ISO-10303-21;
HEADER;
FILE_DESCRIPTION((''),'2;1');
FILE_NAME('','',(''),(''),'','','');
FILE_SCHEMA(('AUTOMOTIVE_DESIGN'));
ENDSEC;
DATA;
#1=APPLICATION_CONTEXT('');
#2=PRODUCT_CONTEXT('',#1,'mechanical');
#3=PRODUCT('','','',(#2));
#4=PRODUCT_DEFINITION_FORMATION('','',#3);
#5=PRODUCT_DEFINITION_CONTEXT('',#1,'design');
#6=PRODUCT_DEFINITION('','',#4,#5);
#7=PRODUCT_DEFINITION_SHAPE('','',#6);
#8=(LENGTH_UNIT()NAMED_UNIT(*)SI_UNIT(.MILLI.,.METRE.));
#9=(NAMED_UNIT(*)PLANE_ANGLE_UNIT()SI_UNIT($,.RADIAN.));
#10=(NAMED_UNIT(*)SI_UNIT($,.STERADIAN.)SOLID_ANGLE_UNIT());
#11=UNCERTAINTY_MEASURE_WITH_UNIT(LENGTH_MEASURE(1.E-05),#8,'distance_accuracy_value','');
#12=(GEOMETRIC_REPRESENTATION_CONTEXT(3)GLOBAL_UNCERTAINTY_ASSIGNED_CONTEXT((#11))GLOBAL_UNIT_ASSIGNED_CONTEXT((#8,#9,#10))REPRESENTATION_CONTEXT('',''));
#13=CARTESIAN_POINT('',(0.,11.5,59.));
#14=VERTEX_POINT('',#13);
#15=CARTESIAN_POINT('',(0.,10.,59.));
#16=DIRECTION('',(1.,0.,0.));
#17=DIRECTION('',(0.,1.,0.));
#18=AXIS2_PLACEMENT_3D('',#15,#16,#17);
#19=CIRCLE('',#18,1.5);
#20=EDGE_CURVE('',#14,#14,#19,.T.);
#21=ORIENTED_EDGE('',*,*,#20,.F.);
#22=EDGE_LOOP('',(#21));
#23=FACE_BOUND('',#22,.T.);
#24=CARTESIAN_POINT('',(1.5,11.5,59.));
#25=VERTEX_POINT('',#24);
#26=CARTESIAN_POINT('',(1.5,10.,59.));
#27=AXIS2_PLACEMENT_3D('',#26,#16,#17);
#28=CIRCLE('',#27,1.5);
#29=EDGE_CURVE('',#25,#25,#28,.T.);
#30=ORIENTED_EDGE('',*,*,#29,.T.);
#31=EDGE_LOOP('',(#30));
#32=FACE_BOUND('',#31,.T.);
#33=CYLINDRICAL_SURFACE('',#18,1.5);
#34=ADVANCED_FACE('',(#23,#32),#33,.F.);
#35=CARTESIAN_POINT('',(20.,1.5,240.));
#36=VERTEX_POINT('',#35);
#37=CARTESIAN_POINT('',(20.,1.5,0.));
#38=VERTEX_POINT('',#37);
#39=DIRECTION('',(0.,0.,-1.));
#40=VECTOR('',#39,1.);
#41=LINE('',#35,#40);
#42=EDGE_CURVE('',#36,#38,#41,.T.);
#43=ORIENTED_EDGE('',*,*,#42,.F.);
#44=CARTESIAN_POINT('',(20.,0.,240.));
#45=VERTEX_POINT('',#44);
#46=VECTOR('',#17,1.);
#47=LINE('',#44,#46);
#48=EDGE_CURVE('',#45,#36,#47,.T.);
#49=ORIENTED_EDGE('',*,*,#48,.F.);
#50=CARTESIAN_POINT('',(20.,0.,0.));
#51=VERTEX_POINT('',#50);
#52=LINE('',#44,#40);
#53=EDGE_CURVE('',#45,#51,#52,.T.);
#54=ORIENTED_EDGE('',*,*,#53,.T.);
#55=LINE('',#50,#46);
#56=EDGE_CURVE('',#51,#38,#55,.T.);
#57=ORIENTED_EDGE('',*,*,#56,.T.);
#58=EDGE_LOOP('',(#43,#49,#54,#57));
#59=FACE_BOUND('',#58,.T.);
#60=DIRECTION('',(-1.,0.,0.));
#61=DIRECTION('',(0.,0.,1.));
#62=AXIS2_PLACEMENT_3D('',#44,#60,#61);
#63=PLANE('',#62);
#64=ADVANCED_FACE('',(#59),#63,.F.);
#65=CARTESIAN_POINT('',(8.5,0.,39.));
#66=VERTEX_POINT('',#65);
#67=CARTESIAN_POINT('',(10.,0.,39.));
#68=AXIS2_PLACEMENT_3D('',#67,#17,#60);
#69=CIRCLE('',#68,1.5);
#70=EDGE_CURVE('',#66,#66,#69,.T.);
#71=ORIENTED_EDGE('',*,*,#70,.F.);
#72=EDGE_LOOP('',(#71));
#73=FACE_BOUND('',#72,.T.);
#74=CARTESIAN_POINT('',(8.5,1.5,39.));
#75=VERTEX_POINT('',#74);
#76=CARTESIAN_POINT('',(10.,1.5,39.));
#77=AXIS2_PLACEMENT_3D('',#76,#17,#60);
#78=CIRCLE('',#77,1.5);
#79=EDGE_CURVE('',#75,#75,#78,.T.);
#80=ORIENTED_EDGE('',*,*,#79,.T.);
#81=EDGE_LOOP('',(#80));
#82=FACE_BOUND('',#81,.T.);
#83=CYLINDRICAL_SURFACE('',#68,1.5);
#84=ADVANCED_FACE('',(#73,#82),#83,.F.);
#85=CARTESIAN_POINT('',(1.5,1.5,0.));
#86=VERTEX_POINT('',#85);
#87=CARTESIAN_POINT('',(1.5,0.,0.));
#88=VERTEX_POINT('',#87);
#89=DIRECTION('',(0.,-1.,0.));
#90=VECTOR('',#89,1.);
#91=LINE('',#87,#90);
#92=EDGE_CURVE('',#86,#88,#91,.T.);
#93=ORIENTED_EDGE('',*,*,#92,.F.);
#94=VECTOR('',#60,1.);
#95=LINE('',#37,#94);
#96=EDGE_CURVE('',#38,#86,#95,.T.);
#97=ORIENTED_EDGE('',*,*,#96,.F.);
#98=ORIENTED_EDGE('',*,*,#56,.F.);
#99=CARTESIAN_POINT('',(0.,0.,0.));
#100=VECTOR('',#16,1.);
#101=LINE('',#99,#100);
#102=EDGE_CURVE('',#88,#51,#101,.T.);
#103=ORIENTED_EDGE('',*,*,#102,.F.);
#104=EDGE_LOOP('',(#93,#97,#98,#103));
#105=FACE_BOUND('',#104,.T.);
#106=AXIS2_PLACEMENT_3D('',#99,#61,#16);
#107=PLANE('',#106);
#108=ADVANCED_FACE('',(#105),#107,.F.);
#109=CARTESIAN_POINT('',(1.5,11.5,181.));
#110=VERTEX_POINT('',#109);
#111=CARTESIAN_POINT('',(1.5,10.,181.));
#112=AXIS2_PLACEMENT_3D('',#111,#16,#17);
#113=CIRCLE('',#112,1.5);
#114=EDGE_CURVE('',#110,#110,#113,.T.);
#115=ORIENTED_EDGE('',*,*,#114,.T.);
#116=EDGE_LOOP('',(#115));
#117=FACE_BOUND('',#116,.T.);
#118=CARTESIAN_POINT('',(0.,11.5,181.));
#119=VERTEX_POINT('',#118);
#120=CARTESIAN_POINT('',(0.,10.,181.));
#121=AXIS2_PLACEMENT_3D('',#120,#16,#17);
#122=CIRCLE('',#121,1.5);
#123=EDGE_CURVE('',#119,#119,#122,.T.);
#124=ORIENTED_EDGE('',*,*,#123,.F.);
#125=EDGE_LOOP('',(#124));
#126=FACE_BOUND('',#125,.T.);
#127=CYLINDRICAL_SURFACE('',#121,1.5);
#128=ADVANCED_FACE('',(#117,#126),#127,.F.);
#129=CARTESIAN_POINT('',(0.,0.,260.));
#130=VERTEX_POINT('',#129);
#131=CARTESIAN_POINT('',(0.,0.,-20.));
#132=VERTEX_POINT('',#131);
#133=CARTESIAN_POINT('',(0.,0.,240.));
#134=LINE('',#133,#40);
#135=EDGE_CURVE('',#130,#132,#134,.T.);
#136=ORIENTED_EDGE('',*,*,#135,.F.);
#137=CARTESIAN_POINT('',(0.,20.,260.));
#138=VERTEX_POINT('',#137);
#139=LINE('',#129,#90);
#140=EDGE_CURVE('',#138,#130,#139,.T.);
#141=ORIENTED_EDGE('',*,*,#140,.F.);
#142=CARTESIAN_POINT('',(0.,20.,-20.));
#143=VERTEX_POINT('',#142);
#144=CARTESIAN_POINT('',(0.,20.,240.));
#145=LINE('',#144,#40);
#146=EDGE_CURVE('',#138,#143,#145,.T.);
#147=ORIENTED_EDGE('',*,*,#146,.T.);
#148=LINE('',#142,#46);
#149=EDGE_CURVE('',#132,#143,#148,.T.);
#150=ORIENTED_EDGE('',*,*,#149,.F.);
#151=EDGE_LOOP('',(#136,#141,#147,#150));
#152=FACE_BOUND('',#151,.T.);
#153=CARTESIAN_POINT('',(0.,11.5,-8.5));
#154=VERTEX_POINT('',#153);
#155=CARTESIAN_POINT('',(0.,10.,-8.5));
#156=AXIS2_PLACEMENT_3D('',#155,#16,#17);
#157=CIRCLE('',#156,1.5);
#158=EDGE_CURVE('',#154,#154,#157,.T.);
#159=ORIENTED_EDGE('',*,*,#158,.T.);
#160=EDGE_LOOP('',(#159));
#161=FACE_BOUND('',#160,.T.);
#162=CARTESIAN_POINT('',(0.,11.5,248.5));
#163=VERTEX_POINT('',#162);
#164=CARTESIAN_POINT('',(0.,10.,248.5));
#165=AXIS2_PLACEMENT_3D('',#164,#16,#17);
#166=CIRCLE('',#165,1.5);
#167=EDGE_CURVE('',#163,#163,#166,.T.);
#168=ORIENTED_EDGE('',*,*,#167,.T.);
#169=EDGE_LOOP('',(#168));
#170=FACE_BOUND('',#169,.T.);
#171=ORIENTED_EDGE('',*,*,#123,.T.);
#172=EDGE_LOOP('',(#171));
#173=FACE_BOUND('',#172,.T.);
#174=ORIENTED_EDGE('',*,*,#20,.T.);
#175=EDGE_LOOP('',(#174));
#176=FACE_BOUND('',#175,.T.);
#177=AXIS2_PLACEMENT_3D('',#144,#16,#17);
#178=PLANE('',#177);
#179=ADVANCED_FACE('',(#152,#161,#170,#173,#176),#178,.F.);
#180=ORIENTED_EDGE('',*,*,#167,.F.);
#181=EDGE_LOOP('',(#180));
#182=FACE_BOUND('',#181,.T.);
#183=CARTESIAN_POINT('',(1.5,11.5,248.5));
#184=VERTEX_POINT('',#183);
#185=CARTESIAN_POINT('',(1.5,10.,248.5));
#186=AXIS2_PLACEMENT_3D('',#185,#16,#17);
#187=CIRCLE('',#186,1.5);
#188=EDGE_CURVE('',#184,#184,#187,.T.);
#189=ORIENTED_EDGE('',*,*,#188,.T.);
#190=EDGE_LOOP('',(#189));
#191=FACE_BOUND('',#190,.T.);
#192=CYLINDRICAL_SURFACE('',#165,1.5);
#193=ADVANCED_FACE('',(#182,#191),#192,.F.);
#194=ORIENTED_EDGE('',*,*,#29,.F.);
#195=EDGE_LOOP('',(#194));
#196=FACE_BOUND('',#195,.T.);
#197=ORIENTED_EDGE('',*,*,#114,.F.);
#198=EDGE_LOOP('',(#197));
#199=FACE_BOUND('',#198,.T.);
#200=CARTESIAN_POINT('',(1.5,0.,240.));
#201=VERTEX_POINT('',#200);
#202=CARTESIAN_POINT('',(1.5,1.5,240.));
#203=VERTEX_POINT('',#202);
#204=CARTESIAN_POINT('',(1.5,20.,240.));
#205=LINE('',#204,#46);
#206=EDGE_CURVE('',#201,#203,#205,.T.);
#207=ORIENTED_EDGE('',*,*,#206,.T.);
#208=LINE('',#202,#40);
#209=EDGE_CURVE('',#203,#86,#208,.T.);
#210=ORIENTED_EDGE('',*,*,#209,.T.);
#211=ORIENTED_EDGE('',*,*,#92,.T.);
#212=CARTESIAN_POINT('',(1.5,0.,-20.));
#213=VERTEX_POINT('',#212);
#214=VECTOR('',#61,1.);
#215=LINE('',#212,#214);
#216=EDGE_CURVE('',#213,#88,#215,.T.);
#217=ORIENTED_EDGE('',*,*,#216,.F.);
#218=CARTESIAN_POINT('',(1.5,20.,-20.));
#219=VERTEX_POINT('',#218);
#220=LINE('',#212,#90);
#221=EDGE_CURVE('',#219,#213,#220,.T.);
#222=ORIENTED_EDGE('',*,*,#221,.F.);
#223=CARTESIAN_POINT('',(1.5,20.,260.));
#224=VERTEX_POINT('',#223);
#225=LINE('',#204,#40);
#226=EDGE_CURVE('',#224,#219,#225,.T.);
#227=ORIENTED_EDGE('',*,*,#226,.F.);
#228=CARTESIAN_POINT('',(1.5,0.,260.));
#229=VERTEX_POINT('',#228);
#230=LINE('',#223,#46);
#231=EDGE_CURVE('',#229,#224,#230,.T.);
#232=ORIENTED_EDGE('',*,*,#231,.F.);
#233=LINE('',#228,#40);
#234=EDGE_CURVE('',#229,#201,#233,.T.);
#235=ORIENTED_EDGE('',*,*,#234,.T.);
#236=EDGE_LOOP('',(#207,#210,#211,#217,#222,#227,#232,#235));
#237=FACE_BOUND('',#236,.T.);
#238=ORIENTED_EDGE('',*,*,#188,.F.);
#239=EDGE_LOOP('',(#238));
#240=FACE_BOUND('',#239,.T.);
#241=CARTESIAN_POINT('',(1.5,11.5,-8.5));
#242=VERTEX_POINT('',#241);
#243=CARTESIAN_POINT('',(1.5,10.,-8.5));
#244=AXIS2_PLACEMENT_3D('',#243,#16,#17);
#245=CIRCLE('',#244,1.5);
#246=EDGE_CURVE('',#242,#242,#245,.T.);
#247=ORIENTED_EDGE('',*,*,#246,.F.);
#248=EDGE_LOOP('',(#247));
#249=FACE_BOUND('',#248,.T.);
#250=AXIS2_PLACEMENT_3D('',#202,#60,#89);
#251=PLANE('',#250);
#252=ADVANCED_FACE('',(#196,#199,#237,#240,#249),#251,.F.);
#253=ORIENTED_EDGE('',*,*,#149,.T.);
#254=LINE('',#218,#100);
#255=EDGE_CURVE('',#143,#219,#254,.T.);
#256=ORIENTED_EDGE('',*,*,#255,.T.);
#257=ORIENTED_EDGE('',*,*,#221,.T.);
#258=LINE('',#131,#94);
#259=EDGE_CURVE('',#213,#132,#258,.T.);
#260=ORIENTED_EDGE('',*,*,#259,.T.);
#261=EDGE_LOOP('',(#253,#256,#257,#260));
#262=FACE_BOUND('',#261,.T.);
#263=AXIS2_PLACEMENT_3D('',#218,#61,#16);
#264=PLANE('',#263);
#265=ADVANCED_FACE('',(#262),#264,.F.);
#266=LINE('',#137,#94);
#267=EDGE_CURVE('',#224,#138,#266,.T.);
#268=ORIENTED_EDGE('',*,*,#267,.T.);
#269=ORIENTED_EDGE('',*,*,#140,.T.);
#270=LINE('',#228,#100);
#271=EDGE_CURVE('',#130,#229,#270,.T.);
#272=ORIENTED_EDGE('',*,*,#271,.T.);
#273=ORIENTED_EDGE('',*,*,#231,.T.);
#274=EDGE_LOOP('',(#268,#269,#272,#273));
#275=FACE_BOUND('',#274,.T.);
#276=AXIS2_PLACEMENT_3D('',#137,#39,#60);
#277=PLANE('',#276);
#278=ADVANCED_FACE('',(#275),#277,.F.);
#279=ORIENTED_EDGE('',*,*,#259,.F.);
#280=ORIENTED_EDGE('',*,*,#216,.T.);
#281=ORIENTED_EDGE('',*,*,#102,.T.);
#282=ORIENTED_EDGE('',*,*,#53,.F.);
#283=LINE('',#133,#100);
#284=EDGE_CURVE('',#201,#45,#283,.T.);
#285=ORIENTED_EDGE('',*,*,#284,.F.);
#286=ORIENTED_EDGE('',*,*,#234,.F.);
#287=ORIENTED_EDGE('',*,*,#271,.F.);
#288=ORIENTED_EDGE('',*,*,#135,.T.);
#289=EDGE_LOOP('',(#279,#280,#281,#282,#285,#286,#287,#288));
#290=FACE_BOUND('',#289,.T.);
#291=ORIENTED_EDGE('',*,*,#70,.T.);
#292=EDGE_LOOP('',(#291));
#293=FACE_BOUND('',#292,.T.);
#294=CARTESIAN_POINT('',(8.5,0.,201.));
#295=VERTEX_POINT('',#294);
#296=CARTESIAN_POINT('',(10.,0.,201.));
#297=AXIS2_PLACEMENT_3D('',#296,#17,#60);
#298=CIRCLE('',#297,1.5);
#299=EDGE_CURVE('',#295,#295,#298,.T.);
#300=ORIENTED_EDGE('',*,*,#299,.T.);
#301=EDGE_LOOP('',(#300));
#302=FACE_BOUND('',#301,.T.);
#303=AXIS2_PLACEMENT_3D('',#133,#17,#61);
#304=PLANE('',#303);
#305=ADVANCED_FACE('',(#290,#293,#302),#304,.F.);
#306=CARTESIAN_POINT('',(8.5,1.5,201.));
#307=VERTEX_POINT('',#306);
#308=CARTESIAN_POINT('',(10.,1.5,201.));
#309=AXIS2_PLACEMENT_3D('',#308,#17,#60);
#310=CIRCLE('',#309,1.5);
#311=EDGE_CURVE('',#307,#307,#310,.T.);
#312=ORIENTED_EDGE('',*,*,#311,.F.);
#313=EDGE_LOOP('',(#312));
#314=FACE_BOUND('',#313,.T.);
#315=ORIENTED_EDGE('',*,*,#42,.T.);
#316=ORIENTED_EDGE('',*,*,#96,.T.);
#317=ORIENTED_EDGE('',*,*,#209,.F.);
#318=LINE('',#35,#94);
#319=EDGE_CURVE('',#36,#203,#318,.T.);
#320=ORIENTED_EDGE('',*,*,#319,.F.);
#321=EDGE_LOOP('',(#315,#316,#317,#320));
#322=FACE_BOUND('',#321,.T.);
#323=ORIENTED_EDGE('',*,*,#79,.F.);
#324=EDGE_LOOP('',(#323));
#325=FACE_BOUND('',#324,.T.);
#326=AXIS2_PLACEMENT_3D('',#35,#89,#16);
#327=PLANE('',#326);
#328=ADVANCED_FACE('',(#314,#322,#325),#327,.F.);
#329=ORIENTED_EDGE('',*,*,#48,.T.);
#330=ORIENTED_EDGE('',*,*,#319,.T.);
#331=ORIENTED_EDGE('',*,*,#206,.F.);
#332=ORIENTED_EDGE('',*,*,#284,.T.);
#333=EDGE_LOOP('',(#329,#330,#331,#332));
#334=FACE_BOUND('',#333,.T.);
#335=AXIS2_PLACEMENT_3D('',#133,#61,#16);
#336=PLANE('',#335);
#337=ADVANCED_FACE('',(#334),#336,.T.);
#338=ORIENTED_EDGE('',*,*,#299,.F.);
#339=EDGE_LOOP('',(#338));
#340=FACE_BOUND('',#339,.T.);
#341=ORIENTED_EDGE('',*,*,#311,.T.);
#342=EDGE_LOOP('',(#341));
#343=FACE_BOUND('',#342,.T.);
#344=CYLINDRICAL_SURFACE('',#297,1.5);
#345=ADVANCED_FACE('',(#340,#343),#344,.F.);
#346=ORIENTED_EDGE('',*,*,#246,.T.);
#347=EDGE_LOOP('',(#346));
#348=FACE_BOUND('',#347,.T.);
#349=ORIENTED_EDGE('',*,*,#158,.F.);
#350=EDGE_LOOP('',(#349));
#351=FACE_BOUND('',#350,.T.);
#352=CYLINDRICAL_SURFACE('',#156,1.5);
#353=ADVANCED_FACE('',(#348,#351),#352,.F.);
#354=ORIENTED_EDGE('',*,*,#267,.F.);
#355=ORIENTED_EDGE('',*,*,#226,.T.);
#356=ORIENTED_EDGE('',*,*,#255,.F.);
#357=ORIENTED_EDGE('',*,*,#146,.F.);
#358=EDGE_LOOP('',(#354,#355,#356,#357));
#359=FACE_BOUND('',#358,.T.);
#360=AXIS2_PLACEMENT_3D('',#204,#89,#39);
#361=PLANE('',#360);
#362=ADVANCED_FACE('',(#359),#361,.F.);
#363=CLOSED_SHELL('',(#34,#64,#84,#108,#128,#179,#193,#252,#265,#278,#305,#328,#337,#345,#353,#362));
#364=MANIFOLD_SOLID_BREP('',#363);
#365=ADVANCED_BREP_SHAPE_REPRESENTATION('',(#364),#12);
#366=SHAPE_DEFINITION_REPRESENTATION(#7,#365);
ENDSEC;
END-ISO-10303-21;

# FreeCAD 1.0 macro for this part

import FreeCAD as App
import Part
import Sketcher

V = App.Vector


def add_polygon(sketch, points):
    """Adds a closed chain of lines whose ends are joined by coincident constraints."""
    first, n = sketch.GeometryCount, len(points)
    for a, b in zip(points, points[1:] + points[:1]):
        sketch.addGeometry(Part.LineSegment(App.Vector(*a, 0), App.Vector(*b, 0)), False)
    for i in range(n):
        sketch.addConstraint(Sketcher.Constraint("Coincident", first + i, 2, first + (i + 1) % n, 1))

doc = App.newDocument("Part")
body = doc.addObject("PartDesign::Body", "Body")

sketch1 = body.newObject("Sketcher::SketchObject", "Sketch")
sketch1.AttachmentSupport = (doc.getObject("XY_Plane"), [""])
sketch1.MapMode = "FlatFace"
add_polygon(sketch1, [(0, 0), (20, 0), (20, 1.5), (1.5, 1.5), (1.5, 20), (0, 20)])
sketch1.addConstraint([
    Sketcher.Constraint("Horizontal", 0),
    Sketcher.Constraint("Vertical", 1),
    Sketcher.Constraint("Horizontal", 2),
    Sketcher.Constraint("Vertical", 3),
    Sketcher.Constraint("Horizontal", 4),
    Sketcher.Constraint("Vertical", 5),
    Sketcher.Constraint("Coincident", 5, 2, -1, 1),
    Sketcher.Constraint("Equal", 4, 1),
    Sketcher.Constraint("Equal", 2, 3),
    Sketcher.Constraint("DistanceX", 0, 1, 0, 2, 20.0),
    Sketcher.Constraint("DistanceX", 2, 2, 2, 1, 18.5),
])
pad1 = body.newObject("PartDesign::Pad", "Pad")
pad1.Profile = sketch1
pad1.Length = 240

sketch2 = body.newObject("Sketcher::SketchObject", "Sketch001")
sketch2.AttachmentSupport = (doc.getObject("XZ_Plane"), [""])
sketch2.MapMode = "FlatFace"
sketch2.AttachmentOffset = App.Placement(V(0, 0, -1.5), App.Rotation())
sketch2.addGeometry([
    Part.Circle(V(10, 39, 0), V(0, 0, 1), 1.5),
    Part.Circle(V(10, 201, 0), V(0, 0, 1), 1.5),
], False)
sketch2.addConstraint([
    Sketcher.Constraint("Equal", 0, 1),
    Sketcher.Constraint("Vertical", 0, 3, 1, 3),
    Sketcher.Constraint("Diameter", 0, 3.0),
    Sketcher.Constraint("DistanceX", -1, 1, 0, 3, 10.0),
    Sketcher.Constraint("DistanceY", -1, 1, 0, 3, 39.0),
    Sketcher.Constraint("DistanceY", -1, 1, 1, 3, 201.0),
])
pocket1 = body.newObject("PartDesign::Pocket", "Pocket")
pocket1.Profile = sketch2
pocket1.Type = "ThroughAll"
pocket1.Reversed = True

sketch3 = body.newObject("Sketcher::SketchObject", "Sketch002")
sketch3.AttachmentSupport = (doc.getObject("XY_Plane"), [""])
sketch3.MapMode = "FlatFace"
sketch3.AttachmentOffset = App.Placement(V(0, 0, 240), App.Rotation())
add_polygon(sketch3, [(0, 20), (0, 0), (1.5, 0), (1.5, 20)])
sketch3.addConstraint([
    Sketcher.Constraint("Vertical", 0),
    Sketcher.Constraint("Horizontal", 1),
    Sketcher.Constraint("Vertical", 2),
    Sketcher.Constraint("Horizontal", 3),
    Sketcher.Constraint("Coincident", 0, 2, -1, 1),
    Sketcher.Constraint("DistanceY", 0, 2, 0, 1, 20.0),
    Sketcher.Constraint("DistanceX", 1, 1, 1, 2, 1.5),
])
pad2 = body.newObject("PartDesign::Pad", "Pad001")
pad2.Profile = sketch3
pad2.Length = 20

sketch4 = body.newObject("Sketcher::SketchObject", "Sketch003")
sketch4.AttachmentSupport = (doc.getObject("XY_Plane"), [""])
sketch4.MapMode = "FlatFace"
add_polygon(sketch4, [(1.5, 20), (1.5, 0), (0, 0), (0, 20)])
sketch4.addConstraint([
    Sketcher.Constraint("Vertical", 0),
    Sketcher.Constraint("Horizontal", 1),
    Sketcher.Constraint("Vertical", 2),
    Sketcher.Constraint("Horizontal", 3),
    Sketcher.Constraint("Coincident", 1, 2, -1, 1),
    Sketcher.Constraint("DistanceY", 0, 2, 0, 1, 20.0),
    Sketcher.Constraint("DistanceX", 1, 2, 1, 1, 1.5),
])
pad3 = body.newObject("PartDesign::Pad", "Pad002")
pad3.Profile = sketch4
pad3.Length = 20
pad3.Reversed = True

sketch5 = body.newObject("Sketcher::SketchObject", "Sketch004")
sketch5.AttachmentSupport = (doc.getObject("YZ_Plane"), [""])
sketch5.MapMode = "FlatFace"
sketch5.AttachmentOffset = App.Placement(V(0, 0, 1.5), App.Rotation())
sketch5.addGeometry([
    Part.Circle(V(10, 248.5, 0), V(0, 0, 1), 1.5),
    Part.Circle(V(10, -8.5, 0), V(0, 0, 1), 1.5),
    Part.Circle(V(10, 181, 0), V(0, 0, 1), 1.5),
    Part.Circle(V(10, 59, 0), V(0, 0, 1), 1.5),
], False)
sketch5.addConstraint([
    Sketcher.Constraint("Equal", 0, 1),
    Sketcher.Constraint("Equal", 1, 2),
    Sketcher.Constraint("Equal", 2, 3),
    Sketcher.Constraint("Vertical", 0, 3, 1, 3),
    Sketcher.Constraint("Vertical", 1, 3, 2, 3),
    Sketcher.Constraint("Vertical", 2, 3, 3, 3),
    Sketcher.Constraint("Diameter", 0, 3.0),
    Sketcher.Constraint("DistanceX", -1, 1, 0, 3, 10.0),
    Sketcher.Constraint("DistanceY", -1, 1, 2, 3, 181.0),
    Sketcher.Constraint("DistanceY", -1, 1, 3, 3, 59.0),
    Sketcher.Constraint("DistanceY", 1, 3, 0, 3, 257.0),
    Sketcher.Constraint("DistanceY", -1, 1, 0, 3, 248.5),
])
pocket2 = body.newObject("PartDesign::Pocket", "Pocket001")
pocket2.Profile = sketch5
pocket2.Type = "ThroughAll"

doc.recompute()
